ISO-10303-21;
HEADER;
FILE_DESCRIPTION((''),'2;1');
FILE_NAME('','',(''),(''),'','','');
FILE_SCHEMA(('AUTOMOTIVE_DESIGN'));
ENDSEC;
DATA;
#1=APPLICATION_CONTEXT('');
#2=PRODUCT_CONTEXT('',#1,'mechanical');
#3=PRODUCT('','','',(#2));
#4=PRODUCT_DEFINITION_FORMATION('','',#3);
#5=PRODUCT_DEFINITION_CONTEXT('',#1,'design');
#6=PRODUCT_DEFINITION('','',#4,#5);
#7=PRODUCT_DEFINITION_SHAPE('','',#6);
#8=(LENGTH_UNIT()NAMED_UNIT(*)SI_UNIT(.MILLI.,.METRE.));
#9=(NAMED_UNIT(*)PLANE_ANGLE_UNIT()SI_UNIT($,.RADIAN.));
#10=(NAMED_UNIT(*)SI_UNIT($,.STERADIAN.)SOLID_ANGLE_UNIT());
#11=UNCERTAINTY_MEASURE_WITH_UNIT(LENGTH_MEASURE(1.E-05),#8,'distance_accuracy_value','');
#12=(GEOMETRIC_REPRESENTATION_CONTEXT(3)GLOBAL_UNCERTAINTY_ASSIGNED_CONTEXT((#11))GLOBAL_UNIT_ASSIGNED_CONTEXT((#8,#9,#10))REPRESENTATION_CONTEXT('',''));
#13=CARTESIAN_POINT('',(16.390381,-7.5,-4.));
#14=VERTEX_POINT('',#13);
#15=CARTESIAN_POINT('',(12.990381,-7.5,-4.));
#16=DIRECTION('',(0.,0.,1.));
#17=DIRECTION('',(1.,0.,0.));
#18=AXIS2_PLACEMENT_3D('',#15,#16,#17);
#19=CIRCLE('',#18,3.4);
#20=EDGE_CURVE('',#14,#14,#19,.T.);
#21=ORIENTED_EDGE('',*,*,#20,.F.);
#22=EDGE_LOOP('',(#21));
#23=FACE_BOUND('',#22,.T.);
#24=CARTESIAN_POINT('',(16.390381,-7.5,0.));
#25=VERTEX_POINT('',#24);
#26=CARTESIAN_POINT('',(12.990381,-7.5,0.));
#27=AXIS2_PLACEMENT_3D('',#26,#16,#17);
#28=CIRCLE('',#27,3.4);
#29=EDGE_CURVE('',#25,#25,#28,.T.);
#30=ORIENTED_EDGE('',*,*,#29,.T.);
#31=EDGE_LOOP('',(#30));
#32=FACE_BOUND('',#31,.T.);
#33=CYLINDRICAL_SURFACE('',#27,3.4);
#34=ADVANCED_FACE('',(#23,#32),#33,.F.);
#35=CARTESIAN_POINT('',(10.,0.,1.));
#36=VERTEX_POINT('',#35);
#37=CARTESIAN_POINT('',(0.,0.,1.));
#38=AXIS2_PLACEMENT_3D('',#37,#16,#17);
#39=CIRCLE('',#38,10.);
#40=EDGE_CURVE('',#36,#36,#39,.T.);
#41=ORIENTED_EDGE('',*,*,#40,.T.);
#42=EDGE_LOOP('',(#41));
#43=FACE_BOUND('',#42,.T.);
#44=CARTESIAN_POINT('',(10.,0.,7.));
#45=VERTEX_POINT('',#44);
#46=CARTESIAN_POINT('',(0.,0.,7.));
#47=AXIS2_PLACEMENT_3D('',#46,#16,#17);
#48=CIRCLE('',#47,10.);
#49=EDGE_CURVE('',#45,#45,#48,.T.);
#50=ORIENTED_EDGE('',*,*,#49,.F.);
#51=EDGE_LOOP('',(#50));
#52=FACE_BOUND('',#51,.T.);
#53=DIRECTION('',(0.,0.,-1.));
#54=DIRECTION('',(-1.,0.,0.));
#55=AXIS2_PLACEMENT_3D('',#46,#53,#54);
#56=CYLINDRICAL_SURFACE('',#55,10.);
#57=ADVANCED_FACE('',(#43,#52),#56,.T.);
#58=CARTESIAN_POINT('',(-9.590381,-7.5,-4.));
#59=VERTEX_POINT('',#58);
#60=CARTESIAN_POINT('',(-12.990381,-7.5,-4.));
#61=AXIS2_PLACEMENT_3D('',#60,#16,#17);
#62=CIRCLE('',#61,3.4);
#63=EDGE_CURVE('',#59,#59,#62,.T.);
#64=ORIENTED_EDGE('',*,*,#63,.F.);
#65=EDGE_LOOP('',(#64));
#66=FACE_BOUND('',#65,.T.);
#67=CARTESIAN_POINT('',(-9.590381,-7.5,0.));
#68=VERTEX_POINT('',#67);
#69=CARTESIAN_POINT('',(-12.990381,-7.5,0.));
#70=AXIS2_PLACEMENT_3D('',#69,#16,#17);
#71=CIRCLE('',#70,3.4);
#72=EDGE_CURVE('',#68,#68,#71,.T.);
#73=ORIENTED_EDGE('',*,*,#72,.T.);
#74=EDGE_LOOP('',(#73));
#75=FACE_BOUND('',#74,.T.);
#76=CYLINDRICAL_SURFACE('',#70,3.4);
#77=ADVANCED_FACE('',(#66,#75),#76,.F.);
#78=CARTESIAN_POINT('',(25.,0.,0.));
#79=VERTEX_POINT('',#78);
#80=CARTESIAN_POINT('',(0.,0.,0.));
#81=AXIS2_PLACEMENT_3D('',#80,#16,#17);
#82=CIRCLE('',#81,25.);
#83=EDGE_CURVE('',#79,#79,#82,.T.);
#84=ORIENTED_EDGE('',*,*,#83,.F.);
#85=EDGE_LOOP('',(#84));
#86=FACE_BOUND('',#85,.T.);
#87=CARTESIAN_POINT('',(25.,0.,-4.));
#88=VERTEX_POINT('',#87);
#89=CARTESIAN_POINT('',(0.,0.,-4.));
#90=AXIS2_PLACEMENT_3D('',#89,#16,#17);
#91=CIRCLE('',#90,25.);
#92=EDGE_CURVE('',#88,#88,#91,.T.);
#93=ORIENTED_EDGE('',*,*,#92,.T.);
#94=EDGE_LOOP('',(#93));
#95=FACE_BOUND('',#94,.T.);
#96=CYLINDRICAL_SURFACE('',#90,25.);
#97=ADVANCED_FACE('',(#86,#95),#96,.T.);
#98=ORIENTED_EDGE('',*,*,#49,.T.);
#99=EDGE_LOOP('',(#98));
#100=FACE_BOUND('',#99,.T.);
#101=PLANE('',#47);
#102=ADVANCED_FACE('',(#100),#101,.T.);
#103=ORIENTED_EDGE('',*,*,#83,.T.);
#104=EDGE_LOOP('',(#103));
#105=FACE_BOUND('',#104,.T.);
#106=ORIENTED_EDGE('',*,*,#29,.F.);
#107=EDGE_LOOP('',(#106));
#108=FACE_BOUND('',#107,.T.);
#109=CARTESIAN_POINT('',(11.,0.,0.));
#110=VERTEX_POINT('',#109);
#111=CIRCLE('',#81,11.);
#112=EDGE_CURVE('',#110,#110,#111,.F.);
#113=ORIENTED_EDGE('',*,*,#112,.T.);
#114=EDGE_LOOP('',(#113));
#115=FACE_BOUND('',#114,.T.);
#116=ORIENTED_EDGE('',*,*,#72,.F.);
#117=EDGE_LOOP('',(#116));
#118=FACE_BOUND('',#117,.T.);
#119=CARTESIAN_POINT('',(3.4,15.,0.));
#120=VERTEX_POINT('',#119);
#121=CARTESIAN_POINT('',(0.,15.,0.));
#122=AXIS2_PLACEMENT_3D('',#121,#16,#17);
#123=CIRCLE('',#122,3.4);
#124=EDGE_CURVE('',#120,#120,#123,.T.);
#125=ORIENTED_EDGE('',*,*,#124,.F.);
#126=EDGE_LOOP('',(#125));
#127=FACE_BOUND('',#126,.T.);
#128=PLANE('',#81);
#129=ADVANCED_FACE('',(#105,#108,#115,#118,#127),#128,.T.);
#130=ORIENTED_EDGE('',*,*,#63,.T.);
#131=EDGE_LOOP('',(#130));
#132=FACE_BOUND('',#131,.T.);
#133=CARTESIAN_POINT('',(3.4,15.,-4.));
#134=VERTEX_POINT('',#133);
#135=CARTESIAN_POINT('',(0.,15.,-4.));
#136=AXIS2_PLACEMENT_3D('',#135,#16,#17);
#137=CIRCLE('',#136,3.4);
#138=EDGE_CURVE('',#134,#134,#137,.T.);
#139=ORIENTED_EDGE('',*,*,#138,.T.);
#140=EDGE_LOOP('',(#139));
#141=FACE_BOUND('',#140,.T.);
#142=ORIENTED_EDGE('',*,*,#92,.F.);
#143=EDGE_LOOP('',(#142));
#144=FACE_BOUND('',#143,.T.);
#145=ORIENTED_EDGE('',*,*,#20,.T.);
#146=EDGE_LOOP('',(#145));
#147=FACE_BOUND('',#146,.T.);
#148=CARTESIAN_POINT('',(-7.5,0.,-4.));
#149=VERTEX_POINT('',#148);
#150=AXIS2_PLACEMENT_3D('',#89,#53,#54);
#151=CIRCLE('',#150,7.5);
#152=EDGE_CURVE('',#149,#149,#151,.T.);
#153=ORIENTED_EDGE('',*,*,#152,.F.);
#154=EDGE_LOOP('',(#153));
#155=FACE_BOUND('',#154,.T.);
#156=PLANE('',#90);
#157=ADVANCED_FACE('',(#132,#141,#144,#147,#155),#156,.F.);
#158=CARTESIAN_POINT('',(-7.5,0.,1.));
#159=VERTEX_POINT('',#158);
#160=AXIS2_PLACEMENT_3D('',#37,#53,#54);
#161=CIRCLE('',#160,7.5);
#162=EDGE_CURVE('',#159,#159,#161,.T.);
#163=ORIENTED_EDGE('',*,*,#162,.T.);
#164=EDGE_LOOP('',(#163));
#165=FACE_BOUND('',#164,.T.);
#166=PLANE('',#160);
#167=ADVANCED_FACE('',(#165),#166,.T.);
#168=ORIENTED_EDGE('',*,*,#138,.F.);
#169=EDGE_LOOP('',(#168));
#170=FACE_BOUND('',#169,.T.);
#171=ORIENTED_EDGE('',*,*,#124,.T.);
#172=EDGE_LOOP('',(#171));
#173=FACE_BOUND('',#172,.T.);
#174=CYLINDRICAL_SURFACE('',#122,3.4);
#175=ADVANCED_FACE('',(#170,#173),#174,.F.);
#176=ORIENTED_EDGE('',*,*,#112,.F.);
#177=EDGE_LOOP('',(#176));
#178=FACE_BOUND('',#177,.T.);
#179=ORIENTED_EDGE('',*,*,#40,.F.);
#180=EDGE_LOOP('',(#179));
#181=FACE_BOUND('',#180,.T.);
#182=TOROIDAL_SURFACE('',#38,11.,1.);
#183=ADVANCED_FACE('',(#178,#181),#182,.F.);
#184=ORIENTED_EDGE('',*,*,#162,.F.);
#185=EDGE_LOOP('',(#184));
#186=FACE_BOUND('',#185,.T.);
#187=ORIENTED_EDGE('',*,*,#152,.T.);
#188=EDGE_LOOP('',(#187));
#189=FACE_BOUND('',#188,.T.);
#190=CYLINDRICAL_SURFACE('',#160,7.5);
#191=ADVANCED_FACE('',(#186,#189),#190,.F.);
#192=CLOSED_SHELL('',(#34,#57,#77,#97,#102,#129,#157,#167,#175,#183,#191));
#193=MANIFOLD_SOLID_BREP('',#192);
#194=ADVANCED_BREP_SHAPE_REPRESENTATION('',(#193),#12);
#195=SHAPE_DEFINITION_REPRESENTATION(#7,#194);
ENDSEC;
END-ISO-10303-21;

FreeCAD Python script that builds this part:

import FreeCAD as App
import Part
import Sketcher

V = App.Vector
Q = App.Units.Quantity


def edges_at(feature, points):
    """Names of the edges that pass closest to the given points."""
    edges = feature.Shape.Edges
    near = lambda p: min(range(len(edges)), key=lambda i: edges[i].distToShape(Part.Vertex(*p))[0])
    return sorted({f"Edge{near(p) + 1}" for p in points})

doc = App.newDocument("Part")
body = doc.addObject("PartDesign::Body", "Body")

# Sketch on XY plane
sketch1 = body.newObject("Sketcher::SketchObject", "Sketch")
sketch1.AttachmentSupport = (doc.getObject("XY_Plane"), [""])
sketch1.MapMode = "FlatFace"
sketch1.addGeometry(Part.Circle(V(0, 0, 0), V(0, 0, 1), 25), False)
sketch1.addConstraint(Sketcher.Constraint("Coincident", 0, 3, -1, 1))
sketch1.addConstraint(Sketcher.Constraint("Diameter", 0, Q("50 mm")))
pad1 = body.newObject("PartDesign::Pad", "Pad")
pad1.Profile = sketch1
pad1.Length = 4
pad1.Reversed = True

# Sketch on XY plane
sketch2 = body.newObject("Sketcher::SketchObject", "Sketch001")
sketch2.AttachmentSupport = (doc.getObject("XY_Plane"), [""])
sketch2.MapMode = "FlatFace"
sketch2.addGeometry(Part.Circle(V(0, 0, 0), V(0, 0, 1), 10), False)
sketch2.addConstraint(Sketcher.Constraint("Coincident", 0, 3, -1, 1))
sketch2.addConstraint(Sketcher.Constraint("Diameter", 0, Q("20 mm")))
pad2 = body.newObject("PartDesign::Pad", "Pad001")
pad2.Profile = sketch2
pad2.Length = 7
doc.recompute()

fillet = body.newObject("PartDesign::Fillet", "Fillet")
fillet.Base = (pad2, edges_at(pad2, [(-10, 0, 0)]))
fillet.Radius = 1

# Sketch on XY plane
sketch3 = body.newObject("Sketcher::SketchObject", "Sketch002")
sketch3.AttachmentSupport = (doc.getObject("XY_Plane"), [""])
sketch3.MapMode = "FlatFace"
sketch3.AttachmentOffset = App.Placement(V(0, 0, -4), App.Rotation())
sketch3.addGeometry(Part.Circle(V(0, 0, 0), V(0, 0, 1), 8), False)
sketch3.addConstraint(Sketcher.Constraint("Coincident", 0, 3, -1, 1))
sketch3.addConstraint(Sketcher.Constraint("Diameter", 0, Q("15 mm")))
pocket1 = body.newObject("PartDesign::Pocket", "Pocket")
pocket1.Profile = sketch3
pocket1.Length = 5
pocket1.Reversed = True

# Sketch on XY plane
sketch4 = body.newObject("Sketcher::SketchObject", "Sketch003")
sketch4.AttachmentSupport = (doc.getObject("XY_Plane"), [""])
sketch4.MapMode = "FlatFace"
sketch4.addGeometry(Part.Circle(V(-13, -7.5, 0), V(0, 0, 1), 3.4), False)
sketch4.addGeometry(Part.Circle(V(0, 15, 0), V(0, 0, 1), 3.4), False)
sketch4.addGeometry(Part.Circle(V(13, -7.5, 0), V(0, 0, 1), 3.4), False)
sketch4.addConstraint(Sketcher.Constraint("Equal", 0, 1))
sketch4.addConstraint(Sketcher.Constraint("Equal", 1, 2))
sketch4.addConstraint(Sketcher.Constraint("Symmetric", 0, 3, 2, 3, -2))
sketch4.addConstraint(Sketcher.Constraint("PointOnObject", 1, 3, -2))
sketch4.addConstraint(Sketcher.Constraint("Diameter", 0, Q("6.8 mm")))
sketch4.addConstraint(Sketcher.Constraint("DistanceY", -1, 1, 1, 3, Q("15 mm")))
sketch4.addConstraint(Sketcher.Constraint("DistanceY", 0, 3, -1, 1, Q("7.5 mm")))
sketch4.addConstraint(Sketcher.Constraint("DistanceX", 0, 3, -1, 1, Q("12.990381 mm")))
doc.recompute()
hole = body.newObject("PartDesign::Hole", "Hole")
hole.Profile = sketch4
hole.ThreadType = "None"
hole.Diameter = 6.8
hole.DepthType = "ThroughAll"

doc.recompute()
